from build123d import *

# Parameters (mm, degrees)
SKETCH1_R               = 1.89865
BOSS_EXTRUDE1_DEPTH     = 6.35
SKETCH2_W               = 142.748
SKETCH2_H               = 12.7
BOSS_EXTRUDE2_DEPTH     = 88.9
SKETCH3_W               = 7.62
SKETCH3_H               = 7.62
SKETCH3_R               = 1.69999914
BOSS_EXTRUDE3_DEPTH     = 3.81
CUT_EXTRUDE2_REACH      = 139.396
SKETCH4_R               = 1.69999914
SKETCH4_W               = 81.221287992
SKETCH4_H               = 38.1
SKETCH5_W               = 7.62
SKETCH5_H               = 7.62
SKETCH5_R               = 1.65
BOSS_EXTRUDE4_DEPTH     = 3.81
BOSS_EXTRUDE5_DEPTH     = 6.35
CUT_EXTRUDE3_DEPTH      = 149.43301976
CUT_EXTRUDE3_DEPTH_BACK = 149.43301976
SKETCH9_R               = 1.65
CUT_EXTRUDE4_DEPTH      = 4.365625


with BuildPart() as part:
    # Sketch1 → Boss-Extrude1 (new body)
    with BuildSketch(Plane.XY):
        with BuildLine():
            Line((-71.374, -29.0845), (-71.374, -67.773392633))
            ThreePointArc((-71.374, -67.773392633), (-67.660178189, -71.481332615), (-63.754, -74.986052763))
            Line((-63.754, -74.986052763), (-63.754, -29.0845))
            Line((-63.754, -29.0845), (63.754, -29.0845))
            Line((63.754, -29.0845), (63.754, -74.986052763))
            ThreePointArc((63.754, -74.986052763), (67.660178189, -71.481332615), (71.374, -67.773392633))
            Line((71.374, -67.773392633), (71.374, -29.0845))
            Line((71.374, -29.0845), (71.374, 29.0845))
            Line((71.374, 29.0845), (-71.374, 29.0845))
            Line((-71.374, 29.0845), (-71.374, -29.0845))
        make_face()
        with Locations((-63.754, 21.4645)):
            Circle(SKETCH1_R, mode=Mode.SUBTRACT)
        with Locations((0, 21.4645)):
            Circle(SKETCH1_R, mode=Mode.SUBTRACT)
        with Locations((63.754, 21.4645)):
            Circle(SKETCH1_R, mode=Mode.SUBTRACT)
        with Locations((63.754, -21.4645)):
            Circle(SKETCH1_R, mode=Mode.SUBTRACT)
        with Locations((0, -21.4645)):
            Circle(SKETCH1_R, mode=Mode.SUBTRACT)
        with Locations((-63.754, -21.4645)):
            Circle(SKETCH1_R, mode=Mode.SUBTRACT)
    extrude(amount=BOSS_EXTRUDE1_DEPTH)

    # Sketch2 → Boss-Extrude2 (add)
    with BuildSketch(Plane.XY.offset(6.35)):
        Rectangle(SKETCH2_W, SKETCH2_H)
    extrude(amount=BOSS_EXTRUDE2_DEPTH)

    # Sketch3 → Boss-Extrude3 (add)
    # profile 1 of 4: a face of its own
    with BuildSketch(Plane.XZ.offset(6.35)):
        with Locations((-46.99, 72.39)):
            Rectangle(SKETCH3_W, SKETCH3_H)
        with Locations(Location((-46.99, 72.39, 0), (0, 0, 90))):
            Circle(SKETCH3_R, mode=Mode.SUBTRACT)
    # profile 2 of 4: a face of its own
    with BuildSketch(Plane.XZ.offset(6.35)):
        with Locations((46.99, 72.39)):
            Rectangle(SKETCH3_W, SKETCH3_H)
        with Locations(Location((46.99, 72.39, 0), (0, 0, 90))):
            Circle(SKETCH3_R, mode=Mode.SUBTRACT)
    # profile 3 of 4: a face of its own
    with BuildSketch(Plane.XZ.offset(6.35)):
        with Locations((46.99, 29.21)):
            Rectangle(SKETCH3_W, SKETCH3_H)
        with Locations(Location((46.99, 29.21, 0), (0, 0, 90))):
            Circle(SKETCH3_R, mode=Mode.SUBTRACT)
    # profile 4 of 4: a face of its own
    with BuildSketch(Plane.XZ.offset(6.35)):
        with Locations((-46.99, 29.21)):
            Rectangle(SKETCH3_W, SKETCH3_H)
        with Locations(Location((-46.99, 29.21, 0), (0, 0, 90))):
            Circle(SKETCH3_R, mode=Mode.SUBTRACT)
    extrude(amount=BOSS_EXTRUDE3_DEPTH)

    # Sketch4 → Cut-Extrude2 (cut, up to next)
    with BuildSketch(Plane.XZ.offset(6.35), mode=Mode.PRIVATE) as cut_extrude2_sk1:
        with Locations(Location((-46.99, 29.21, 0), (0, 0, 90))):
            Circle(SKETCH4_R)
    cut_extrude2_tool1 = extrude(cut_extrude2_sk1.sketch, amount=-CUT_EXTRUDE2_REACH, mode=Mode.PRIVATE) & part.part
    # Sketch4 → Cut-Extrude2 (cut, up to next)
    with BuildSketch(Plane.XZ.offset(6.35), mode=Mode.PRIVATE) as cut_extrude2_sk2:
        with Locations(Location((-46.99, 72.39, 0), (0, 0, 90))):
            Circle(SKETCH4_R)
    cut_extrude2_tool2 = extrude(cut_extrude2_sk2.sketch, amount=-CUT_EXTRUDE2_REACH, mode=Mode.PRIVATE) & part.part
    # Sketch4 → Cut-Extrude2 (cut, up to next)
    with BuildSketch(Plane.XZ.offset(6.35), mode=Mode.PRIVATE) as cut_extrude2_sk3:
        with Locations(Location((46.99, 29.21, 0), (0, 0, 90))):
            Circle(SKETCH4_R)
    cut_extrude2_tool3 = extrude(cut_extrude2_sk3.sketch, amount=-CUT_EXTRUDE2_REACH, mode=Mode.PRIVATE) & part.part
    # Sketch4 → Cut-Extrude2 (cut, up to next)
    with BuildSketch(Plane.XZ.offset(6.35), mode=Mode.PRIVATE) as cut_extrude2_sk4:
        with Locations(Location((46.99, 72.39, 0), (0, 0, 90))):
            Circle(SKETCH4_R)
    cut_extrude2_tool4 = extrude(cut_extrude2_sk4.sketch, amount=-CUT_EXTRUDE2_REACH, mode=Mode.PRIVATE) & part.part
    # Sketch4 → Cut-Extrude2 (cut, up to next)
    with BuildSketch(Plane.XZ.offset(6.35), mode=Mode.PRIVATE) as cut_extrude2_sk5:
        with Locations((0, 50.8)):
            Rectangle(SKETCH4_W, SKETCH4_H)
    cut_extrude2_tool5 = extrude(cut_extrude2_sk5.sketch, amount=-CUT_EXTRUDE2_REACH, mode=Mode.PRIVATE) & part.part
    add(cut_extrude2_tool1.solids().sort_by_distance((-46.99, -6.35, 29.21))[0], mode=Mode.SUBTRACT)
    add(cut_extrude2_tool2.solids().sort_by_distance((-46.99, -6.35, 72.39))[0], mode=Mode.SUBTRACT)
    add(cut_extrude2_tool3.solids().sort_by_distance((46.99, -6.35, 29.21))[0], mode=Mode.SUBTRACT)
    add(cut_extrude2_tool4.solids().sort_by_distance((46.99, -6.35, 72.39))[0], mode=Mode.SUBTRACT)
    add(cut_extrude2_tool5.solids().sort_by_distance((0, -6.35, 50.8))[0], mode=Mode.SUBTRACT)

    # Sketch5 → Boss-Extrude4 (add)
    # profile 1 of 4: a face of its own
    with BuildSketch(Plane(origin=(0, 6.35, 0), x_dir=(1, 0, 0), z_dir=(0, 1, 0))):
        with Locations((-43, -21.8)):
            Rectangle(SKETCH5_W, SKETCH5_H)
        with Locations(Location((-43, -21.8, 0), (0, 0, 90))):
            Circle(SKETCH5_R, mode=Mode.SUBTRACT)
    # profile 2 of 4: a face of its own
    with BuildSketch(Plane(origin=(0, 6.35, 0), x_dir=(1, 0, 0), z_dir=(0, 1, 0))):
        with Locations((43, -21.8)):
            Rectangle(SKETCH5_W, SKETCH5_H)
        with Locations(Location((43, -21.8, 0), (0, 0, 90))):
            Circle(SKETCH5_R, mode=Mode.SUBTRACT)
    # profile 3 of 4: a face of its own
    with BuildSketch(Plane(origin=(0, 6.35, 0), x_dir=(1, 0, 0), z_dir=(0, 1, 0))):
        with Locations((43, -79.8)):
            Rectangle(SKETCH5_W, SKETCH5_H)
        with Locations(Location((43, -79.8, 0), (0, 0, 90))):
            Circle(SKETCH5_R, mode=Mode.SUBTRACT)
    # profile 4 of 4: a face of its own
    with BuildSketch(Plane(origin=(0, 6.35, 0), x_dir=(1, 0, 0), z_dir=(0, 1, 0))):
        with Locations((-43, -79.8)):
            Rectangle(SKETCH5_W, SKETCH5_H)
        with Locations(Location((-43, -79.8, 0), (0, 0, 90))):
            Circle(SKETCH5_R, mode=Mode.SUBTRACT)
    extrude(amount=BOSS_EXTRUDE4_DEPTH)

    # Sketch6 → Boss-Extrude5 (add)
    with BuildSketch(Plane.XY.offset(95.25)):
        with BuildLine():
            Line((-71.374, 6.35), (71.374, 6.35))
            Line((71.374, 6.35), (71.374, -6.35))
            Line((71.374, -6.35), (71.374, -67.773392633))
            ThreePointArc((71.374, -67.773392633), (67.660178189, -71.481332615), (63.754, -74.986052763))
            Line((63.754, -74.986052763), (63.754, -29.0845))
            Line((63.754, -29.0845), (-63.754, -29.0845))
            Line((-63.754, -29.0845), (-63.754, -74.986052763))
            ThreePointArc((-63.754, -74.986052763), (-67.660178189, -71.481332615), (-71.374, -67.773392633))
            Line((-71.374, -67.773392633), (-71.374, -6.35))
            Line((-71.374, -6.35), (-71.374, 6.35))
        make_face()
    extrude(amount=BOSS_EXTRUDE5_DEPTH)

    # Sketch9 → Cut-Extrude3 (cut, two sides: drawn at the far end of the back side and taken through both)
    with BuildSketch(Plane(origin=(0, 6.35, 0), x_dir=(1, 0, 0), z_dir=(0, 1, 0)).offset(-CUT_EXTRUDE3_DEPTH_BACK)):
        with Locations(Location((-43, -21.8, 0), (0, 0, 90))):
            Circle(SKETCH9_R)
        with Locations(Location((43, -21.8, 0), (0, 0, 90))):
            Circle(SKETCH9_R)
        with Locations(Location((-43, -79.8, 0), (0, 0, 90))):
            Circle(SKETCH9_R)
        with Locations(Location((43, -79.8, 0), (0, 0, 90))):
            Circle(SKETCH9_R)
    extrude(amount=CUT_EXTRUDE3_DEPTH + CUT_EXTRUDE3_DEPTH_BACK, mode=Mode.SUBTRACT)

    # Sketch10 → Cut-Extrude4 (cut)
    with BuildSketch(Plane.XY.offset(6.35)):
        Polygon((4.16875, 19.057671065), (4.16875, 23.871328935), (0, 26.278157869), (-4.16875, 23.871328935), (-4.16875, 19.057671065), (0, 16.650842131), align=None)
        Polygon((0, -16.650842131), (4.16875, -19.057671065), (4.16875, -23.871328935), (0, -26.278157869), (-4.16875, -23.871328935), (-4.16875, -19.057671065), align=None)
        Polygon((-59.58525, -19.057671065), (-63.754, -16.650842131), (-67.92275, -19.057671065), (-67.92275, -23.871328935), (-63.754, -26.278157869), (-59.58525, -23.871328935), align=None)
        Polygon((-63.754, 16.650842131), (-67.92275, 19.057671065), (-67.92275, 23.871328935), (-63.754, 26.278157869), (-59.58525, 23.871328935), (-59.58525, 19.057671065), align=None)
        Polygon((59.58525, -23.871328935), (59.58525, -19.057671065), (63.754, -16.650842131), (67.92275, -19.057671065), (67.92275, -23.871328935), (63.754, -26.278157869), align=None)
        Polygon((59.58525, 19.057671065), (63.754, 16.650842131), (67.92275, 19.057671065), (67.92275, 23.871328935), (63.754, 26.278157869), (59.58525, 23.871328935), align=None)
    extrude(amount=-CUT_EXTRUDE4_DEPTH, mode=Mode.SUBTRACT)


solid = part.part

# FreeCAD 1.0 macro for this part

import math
import FreeCAD as App
import Part
import Sketcher

V = App.Vector
Q = App.Units.Quantity

doc = App.newDocument("Part")
params = doc.addObject("Spreadsheet::Sheet", "Params")
for row, (alias, value) in enumerate([
    ("sketch1_radius", "3.875 in"),
    ("sketch1_width", "5.02 in"),
    ("sketch1_width2", "5.62 in"),
    ("pad1_length", "0.25 in"),
    ("sketch2_height", "0.5 in"),
    ("sketch2_width", "5.62 in"),
    ("pad2_length", "3.5 in"),
    ("sketch3_width", "0.3 in"),
    ("pad3_length", "0.15 in"),
    ("sketch8_height", "1.5 in"),
    ("sketch9_width", "0.3 in"),
    ("pad4_length", "0.15 in"),
    ("sketch10_radius", "3.875 in"),
    ("sketch10_width", "5.62 in"),
    ("sketch10_width2", "5.02 in"),
    ("pad5_length", "0.25 in"),
    ("pocket7_length", "0.171875 in"),
], start=1):
    params.set(f"A{row}", alias)
    params.set(f"B{row}", "=" + value)
    params.setAlias(f"B{row}", alias)

body = doc.addObject("PartDesign::Body", "Body")

# Sketch on XY plane
sketch1 = doc.addObject("Sketcher::SketchObject", "Sketch")
body.addObject(sketch1)
sketch1.AttachmentSupport = (doc.XY_Plane, [""])
sketch1.MapMode = "FlatFace"
sketch1.addGeometry(Part.ArcOfCircle(Part.Circle(V(0, 0, 0), V(0, 0, 1), 98.425), math.radians(-136.482267), math.radians(-130.371569)), False)
sketch1.addGeometry(Part.LineSegment(V(-63.754, -74.986053, 0), V(-63.754, -29.0845, 0)), False)
sketch1.addGeometry(Part.LineSegment(V(-63.754, -29.0845, 0), V(63.754, -29.0845, 0)), False)
sketch1.addGeometry(Part.LineSegment(V(63.754, -29.0845, 0), V(63.754, -74.986053, 0)), False)
sketch1.addGeometry(Part.ArcOfCircle(Part.Circle(V(0, 0, 0), V(0, 0, 1), 98.425), math.radians(-49.628431), math.radians(-43.517733)), False)
sketch1.addGeometry(Part.LineSegment(V(71.374, -67.773393, 0), V(71.374, 29.0845, 0)), False)
sketch1.addGeometry(Part.LineSegment(V(71.374, 29.0845, 0), V(-71.374, 29.0845, 0)), False)
sketch1.addGeometry(Part.LineSegment(V(-71.374, 29.0845, 0), V(-71.374, -67.773393, 0)), False)
sketch1.addGeometry(Part.Circle(V(-63.754, -21.4645, 0), V(0, 0, 1), 1.89865), False)
sketch1.addGeometry(Part.Circle(V(0, -21.4645, 0), V(0, 0, 1), 1.89865), False)
sketch1.addGeometry(Part.Circle(V(63.754, -21.4645, 0), V(0, 0, 1), 1.89865), False)
sketch1.addGeometry(Part.Circle(V(-63.754, 21.4645, 0), V(0, 0, 1), 1.89865), False)
sketch1.addGeometry(Part.Circle(V(0, 21.4645, 0), V(0, 0, 1), 1.89865), False)
sketch1.addGeometry(Part.Circle(V(63.754, 21.4645, 0), V(0, 0, 1), 1.89865), False)
sketch1.addConstraint(Sketcher.Constraint("Coincident", 0, 2, 1, 1))
sketch1.addConstraint(Sketcher.Constraint("Coincident", 1, 2, 2, 1))
sketch1.addConstraint(Sketcher.Constraint("Coincident", 2, 2, 3, 1))
sketch1.addConstraint(Sketcher.Constraint("Coincident", 3, 2, 4, 1))
sketch1.addConstraint(Sketcher.Constraint("Coincident", 4, 2, 5, 1))
sketch1.addConstraint(Sketcher.Constraint("Coincident", 5, 2, 6, 1))
sketch1.addConstraint(Sketcher.Constraint("Coincident", 6, 2, 7, 1))
sketch1.addConstraint(Sketcher.Constraint("Coincident", 7, 2, 0, 1))
sketch1.addConstraint(Sketcher.Constraint("Vertical", 1))
sketch1.addConstraint(Sketcher.Constraint("Horizontal", 2))
sketch1.addConstraint(Sketcher.Constraint("Vertical", 3))
sketch1.addConstraint(Sketcher.Constraint("Vertical", 5))
sketch1.addConstraint(Sketcher.Constraint("Horizontal", 6))
sketch1.addConstraint(Sketcher.Constraint("Vertical", 7))
sketch1.addConstraint(Sketcher.Constraint("Coincident", 0, 3, -1, 1))
sketch1.addConstraint(Sketcher.Constraint("Coincident", 4, 3, -1, 1))
sketch1.addConstraint(Sketcher.Constraint("Equal", 0, 4))
sketch1.addConstraint(Sketcher.Constraint("Equal", 8, 9))
sketch1.addConstraint(Sketcher.Constraint("Equal", 9, 10))
sketch1.addConstraint(Sketcher.Constraint("Equal", 10, 11))
sketch1.addConstraint(Sketcher.Constraint("Equal", 11, 12))
sketch1.addConstraint(Sketcher.Constraint("Equal", 12, 13))
sketch1.addConstraint(Sketcher.Constraint("Symmetric", 10, 3, 11, 3, -1, 1))
sketch1.addConstraint(Sketcher.Constraint("Symmetric", 9, 3, 12, 3, -1, 1))
sketch1.addConstraint(Sketcher.Constraint("Symmetric", 8, 3, 13, 3, -1, 1))
sketch1.addConstraint(Sketcher.Constraint("Symmetric", 8, 3, 10, 3, -2))
sketch1.addConstraint(Sketcher.Constraint("PointOnObject", 9, 3, -2))
sketch1.addConstraint(Sketcher.Constraint("Horizontal", 8, 3, 9, 3))
sketch1.addConstraint(Sketcher.Constraint("Horizontal", 0, 2, 3, 2))
sketch1.addConstraint(Sketcher.Constraint("Horizontal", 4, 2, 7, 2))
sketch1.addConstraint(Sketcher.Constraint("Vertical", 11, 3, 0, 2))
sketch1.addConstraint(Sketcher.Constraint("Radius", 0, Q("3.875 in")))
sketch1.addConstraint(Sketcher.Constraint("Diameter", 8, Q("0.1495 in")))
sketch1.addConstraint(Sketcher.Constraint("DistanceX", 2, 1, 2, 2, Q("5.02 in")))
sketch1.addConstraint(Sketcher.Constraint("DistanceX", 6, 2, 6, 1, Q("5.62 in")))
sketch1.addConstraint(Sketcher.Constraint("DistanceY", 1, 2, 8, 3, Q("0.3 in")))
sketch1.addConstraint(Sketcher.Constraint("DistanceY", 13, 3, 5, 2, Q("0.3 in")))
sketch1.addConstraint(Sketcher.Constraint("DistanceY", 8, 3, -1, 1, Q("21.4645 mm")))
sketch1.setExpression("Constraints[31]", "Params.sketch1_radius")
sketch1.setExpression("Constraints[33]", "Params.sketch1_width")
sketch1.setExpression("Constraints[34]", "Params.sketch1_width2")
pad1 = doc.addObject("PartDesign::Pad", "Pad")
body.addObject(pad1)
pad1.Profile = sketch1
pad1.setExpression("Length", "Params.pad1_length")

# Sketch on XY plane
sketch2 = doc.addObject("Sketcher::SketchObject", "Sketch001")
body.addObject(sketch2)
sketch2.AttachmentSupport = (doc.XY_Plane, [""])
sketch2.MapMode = "FlatFace"
sketch2.AttachmentOffset = App.Placement(V(0, 0, 0.25 * 25.4), App.Rotation())
sketch2.addGeometry(Part.LineSegment(V(-71.374, 6.35, 0), V(-71.374, -6.35, 0)), False)
sketch2.addGeometry(Part.LineSegment(V(-71.374, -6.35, 0), V(71.374, -6.35, 0)), False)
sketch2.addGeometry(Part.LineSegment(V(71.374, -6.35, 0), V(71.374, 6.35, 0)), False)
sketch2.addGeometry(Part.LineSegment(V(71.374, 6.35, 0), V(-71.374, 6.35, 0)), False)
sketch2.addConstraint(Sketcher.Constraint("Coincident", 0, 2, 1, 1))
sketch2.addConstraint(Sketcher.Constraint("Coincident", 1, 2, 2, 1))
sketch2.addConstraint(Sketcher.Constraint("Coincident", 2, 2, 3, 1))
sketch2.addConstraint(Sketcher.Constraint("Coincident", 3, 2, 0, 1))
sketch2.addConstraint(Sketcher.Constraint("Vertical", 0))
sketch2.addConstraint(Sketcher.Constraint("Horizontal", 1))
sketch2.addConstraint(Sketcher.Constraint("Vertical", 2))
sketch2.addConstraint(Sketcher.Constraint("Horizontal", 3))
sketch2.addConstraint(Sketcher.Constraint("Symmetric", 0, 2, 2, 2, -1, 1))
sketch2.addConstraint(Sketcher.Constraint("DistanceY", 0, 2, 0, 1, Q("0.5 in")))
sketch2.addConstraint(Sketcher.Constraint("DistanceX", 1, 1, 1, 2, Q("5.62 in")))
sketch2.setExpression("Constraints[9]", "Params.sketch2_height")
sketch2.setExpression("Constraints[10]", "Params.sketch2_width")
pad2 = doc.addObject("PartDesign::Pad", "Pad001")
body.addObject(pad2)
pad2.Profile = sketch2
pad2.setExpression("Length", "Params.pad2_length")

# Sketch on XZ plane
sketch3 = doc.addObject("Sketcher::SketchObject", "Sketch002")
body.addObject(sketch3)
sketch3.AttachmentSupport = (doc.XZ_Plane, [""])
sketch3.MapMode = "FlatFace"
sketch3.AttachmentOffset = App.Placement(V(0, 0, 0.25 * 25.4), App.Rotation())
sketch3.addGeometry(Part.LineSegment(V(-50.8, 76.2, 0), V(-50.8, 68.58, 0)), False)
sketch3.addGeometry(Part.LineSegment(V(-50.8, 68.58, 0), V(-43.18, 68.58, 0)), False)
sketch3.addGeometry(Part.LineSegment(V(-43.18, 68.58, 0), V(-43.18, 76.2, 0)), False)
sketch3.addGeometry(Part.LineSegment(V(-43.18, 76.2, 0), V(-50.8, 76.2, 0)), False)
sketch3.addGeometry(Part.Circle(V(-46.99, 72.39, 0), V(0, 0, 1), 1.699999), False)
sketch3.addGeometry(Part.LineSegment(V(43.18, 76.2, 0), V(43.18, 68.58, 0)), False)
sketch3.addGeometry(Part.LineSegment(V(43.18, 68.58, 0), V(50.8, 68.58, 0)), False)
sketch3.addGeometry(Part.LineSegment(V(50.8, 68.58, 0), V(50.8, 76.2, 0)), False)
sketch3.addGeometry(Part.LineSegment(V(50.8, 76.2, 0), V(43.18, 76.2, 0)), False)
sketch3.addGeometry(Part.Circle(V(46.99, 72.39, 0), V(0, 0, 1), 1.699999), False)
sketch3.addGeometry(Part.LineSegment(V(43.18, 33.02, 0), V(43.18, 25.4, 0)), False)
sketch3.addGeometry(Part.LineSegment(V(43.18, 25.4, 0), V(50.8, 25.4, 0)), False)
sketch3.addGeometry(Part.LineSegment(V(50.8, 25.4, 0), V(50.8, 33.02, 0)), False)
sketch3.addGeometry(Part.LineSegment(V(50.8, 33.02, 0), V(43.18, 33.02, 0)), False)
sketch3.addGeometry(Part.Circle(V(46.99, 29.21, 0), V(0, 0, 1), 1.699999), False)
sketch3.addGeometry(Part.LineSegment(V(-50.8, 33.02, 0), V(-50.8, 25.4, 0)), False)
sketch3.addGeometry(Part.LineSegment(V(-50.8, 25.4, 0), V(-43.18, 25.4, 0)), False)
sketch3.addGeometry(Part.LineSegment(V(-43.18, 25.4, 0), V(-43.18, 33.02, 0)), False)
sketch3.addGeometry(Part.LineSegment(V(-43.18, 33.02, 0), V(-50.8, 33.02, 0)), False)
sketch3.addGeometry(Part.Circle(V(-46.99, 29.21, 0), V(0, 0, 1), 1.699999), False)
sketch3.addConstraint(Sketcher.Constraint("Coincident", 0, 2, 1, 1))
sketch3.addConstraint(Sketcher.Constraint("Coincident", 1, 2, 2, 1))
sketch3.addConstraint(Sketcher.Constraint("Coincident", 2, 2, 3, 1))
sketch3.addConstraint(Sketcher.Constraint("Coincident", 3, 2, 0, 1))
sketch3.addConstraint(Sketcher.Constraint("Coincident", 5, 2, 6, 1))
sketch3.addConstraint(Sketcher.Constraint("Coincident", 6, 2, 7, 1))
sketch3.addConstraint(Sketcher.Constraint("Coincident", 7, 2, 8, 1))
sketch3.addConstraint(Sketcher.Constraint("Coincident", 8, 2, 5, 1))
sketch3.addConstraint(Sketcher.Constraint("Coincident", 10, 2, 11, 1))
sketch3.addConstraint(Sketcher.Constraint("Coincident", 11, 2, 12, 1))
sketch3.addConstraint(Sketcher.Constraint("Coincident", 12, 2, 13, 1))
sketch3.addConstraint(Sketcher.Constraint("Coincident", 13, 2, 10, 1))
sketch3.addConstraint(Sketcher.Constraint("Coincident", 15, 2, 16, 1))
sketch3.addConstraint(Sketcher.Constraint("Coincident", 16, 2, 17, 1))
sketch3.addConstraint(Sketcher.Constraint("Coincident", 17, 2, 18, 1))
sketch3.addConstraint(Sketcher.Constraint("Coincident", 18, 2, 15, 1))
sketch3.addConstraint(Sketcher.Constraint("Vertical", 0))
sketch3.addConstraint(Sketcher.Constraint("Horizontal", 1))
sketch3.addConstraint(Sketcher.Constraint("Vertical", 2))
sketch3.addConstraint(Sketcher.Constraint("Horizontal", 3))
sketch3.addConstraint(Sketcher.Constraint("Vertical", 5))
sketch3.addConstraint(Sketcher.Constraint("Horizontal", 6))
sketch3.addConstraint(Sketcher.Constraint("Vertical", 7))
sketch3.addConstraint(Sketcher.Constraint("Horizontal", 8))
sketch3.addConstraint(Sketcher.Constraint("Vertical", 10))
sketch3.addConstraint(Sketcher.Constraint("Horizontal", 11))
sketch3.addConstraint(Sketcher.Constraint("Vertical", 12))
sketch3.addConstraint(Sketcher.Constraint("Horizontal", 13))
sketch3.addConstraint(Sketcher.Constraint("Vertical", 15))
sketch3.addConstraint(Sketcher.Constraint("Horizontal", 16))
sketch3.addConstraint(Sketcher.Constraint("Vertical", 17))
sketch3.addConstraint(Sketcher.Constraint("Horizontal", 18))
sketch3.addConstraint(Sketcher.Constraint("Equal", 4, 9))
sketch3.addConstraint(Sketcher.Constraint("Equal", 9, 14))
sketch3.addConstraint(Sketcher.Constraint("Equal", 14, 19))
sketch3.addConstraint(Sketcher.Constraint("Symmetric", 4, 3, 9, 3, -2))
sketch3.addConstraint(Sketcher.Constraint("Symmetric", 14, 3, 19, 3, -2))
sketch3.addConstraint(Sketcher.Constraint("Symmetric", 1, 2, 5, 2, -2))
sketch3.addConstraint(Sketcher.Constraint("Symmetric", 3, 2, 7, 2, -2))
sketch3.addConstraint(Sketcher.Constraint("Symmetric", 11, 2, 15, 2, -2))
sketch3.addConstraint(Sketcher.Constraint("Symmetric", 13, 2, 17, 2, -2))
sketch3.addConstraint(Sketcher.Constraint("Vertical", 9, 3, 14, 3))
sketch3.addConstraint(Sketcher.Constraint("Vertical", 8, 2, 10, 2))
sketch3.addConstraint(Sketcher.Constraint("Vertical", 7, 2, 11, 2))
sketch3.addConstraint(Sketcher.Constraint("Equal", 18, 0))
sketch3.addConstraint(Sketcher.Constraint("Equal", 7, 10))
sketch3.addConstraint(Sketcher.Constraint("DistanceX", 1, 1, 1, 2, Q("0.3 in")))
sketch3.addConstraint(Sketcher.Constraint("DistanceX", 0, 2, -1, 1, Q("2 in")))
sketch3.addConstraint(Sketcher.Constraint("DistanceY", -1, 1, 2, 2, Q("3 in")))
sketch3.addConstraint(Sketcher.Constraint("DistanceY", -1, 1, 10, 2, Q("1 in")))
sketch3.addConstraint(Sketcher.Constraint("DistanceX", 4, 3, 9, 3, Q("3.7 in")))
sketch3.addConstraint(Sketcher.Constraint("DistanceY", 14, 3, 9, 3, Q("1.7 in")))
sketch3.addConstraint(Sketcher.Constraint("Diameter", 4, Q("3.399998 mm")))
sketch3.addConstraint(Sketcher.Constraint("DistanceY", -1, 1, 4, 3, Q("2.85 in")))
sketch3.setExpression("Constraints[46]", "Params.sketch3_width")
pad3 = doc.addObject("PartDesign::Pad", "Pad002")
body.addObject(pad3)
pad3.Profile = sketch3
pad3.setExpression("Length", "Params.pad3_length")

# Sketch on XZ plane
sketch4 = doc.addObject("Sketcher::SketchObject", "Sketch003")
body.addObject(sketch4)
sketch4.AttachmentSupport = (doc.XZ_Plane, [""])
sketch4.MapMode = "FlatFace"
sketch4.AttachmentOffset = App.Placement(V(0, 0, 0.25 * 25.4), App.Rotation())
sketch4.addGeometry(Part.Circle(V(-46.99, 29.21, 0), V(0, 0, 1), 1.699999), False)
sketch4.addConstraint(Sketcher.Constraint("Diameter", 0, Q("3.399998 mm")))
sketch4.addConstraint(Sketcher.Constraint("DistanceX", 0, 3, -1, 1, Q("1.85 in")))
sketch4.addConstraint(Sketcher.Constraint("DistanceY", -1, 1, 0, 3, Q("1.15 in")))
pocket1 = doc.addObject("PartDesign::Pocket", "Pocket")
body.addObject(pocket1)
pocket1.Profile = sketch4
pocket1.Type = "UpToFirst"

# Sketch on XZ plane
sketch5 = doc.addObject("Sketcher::SketchObject", "Sketch004")
body.addObject(sketch5)
sketch5.AttachmentSupport = (doc.XZ_Plane, [""])
sketch5.MapMode = "FlatFace"
sketch5.AttachmentOffset = App.Placement(V(0, 0, 0.25 * 25.4), App.Rotation())
sketch5.addGeometry(Part.Circle(V(-46.99, 72.39, 0), V(0, 0, 1), 1.699999), False)
sketch5.addConstraint(Sketcher.Constraint("Diameter", 0, Q("3.399998 mm")))
sketch5.addConstraint(Sketcher.Constraint("DistanceX", 0, 3, -1, 1, Q("1.85 in")))
sketch5.addConstraint(Sketcher.Constraint("DistanceY", -1, 1, 0, 3, Q("2.85 in")))
pocket2 = doc.addObject("PartDesign::Pocket", "Pocket001")
body.addObject(pocket2)
pocket2.Profile = sketch5
pocket2.Type = "UpToFirst"

# Sketch on XZ plane
sketch6 = doc.addObject("Sketcher::SketchObject", "Sketch005")
body.addObject(sketch6)
sketch6.AttachmentSupport = (doc.XZ_Plane, [""])
sketch6.MapMode = "FlatFace"
sketch6.AttachmentOffset = App.Placement(V(0, 0, 0.25 * 25.4), App.Rotation())
sketch6.addGeometry(Part.Circle(V(46.99, 29.21, 0), V(0, 0, 1), 1.699999), False)
sketch6.addConstraint(Sketcher.Constraint("Diameter", 0, Q("3.399998 mm")))
sketch6.addConstraint(Sketcher.Constraint("DistanceX", -1, 1, 0, 3, Q("1.85 in")))
sketch6.addConstraint(Sketcher.Constraint("DistanceY", -1, 1, 0, 3, Q("1.15 in")))
pocket3 = doc.addObject("PartDesign::Pocket", "Pocket002")
body.addObject(pocket3)
pocket3.Profile = sketch6
pocket3.Type = "UpToFirst"

# Sketch on XZ plane
sketch7 = doc.addObject("Sketcher::SketchObject", "Sketch006")
body.addObject(sketch7)
sketch7.AttachmentSupport = (doc.XZ_Plane, [""])
sketch7.MapMode = "FlatFace"
sketch7.AttachmentOffset = App.Placement(V(0, 0, 0.25 * 25.4), App.Rotation())
sketch7.addGeometry(Part.Circle(V(46.99, 72.39, 0), V(0, 0, 1), 1.699999), False)
sketch7.addConstraint(Sketcher.Constraint("Diameter", 0, Q("3.399998 mm")))
sketch7.addConstraint(Sketcher.Constraint("DistanceX", -1, 1, 0, 3, Q("1.85 in")))
sketch7.addConstraint(Sketcher.Constraint("DistanceY", -1, 1, 0, 3, Q("2.85 in")))
pocket4 = doc.addObject("PartDesign::Pocket", "Pocket003")
body.addObject(pocket4)
pocket4.Profile = sketch7
pocket4.Type = "UpToFirst"

# Sketch on XZ plane
sketch8 = doc.addObject("Sketcher::SketchObject", "Sketch007")
body.addObject(sketch8)
sketch8.AttachmentSupport = (doc.XZ_Plane, [""])
sketch8.MapMode = "FlatFace"
sketch8.AttachmentOffset = App.Placement(V(0, 0, 0.25 * 25.4), App.Rotation())
sketch8.addGeometry(Part.LineSegment(V(-40.610644, 69.85, 0), V(-40.610644, 31.75, 0)), False)
sketch8.addGeometry(Part.LineSegment(V(-40.610644, 31.75, 0), V(40.610644, 31.75, 0)), False)
sketch8.addGeometry(Part.LineSegment(V(40.610644, 31.75, 0), V(40.610644, 69.85, 0)), False)
sketch8.addGeometry(Part.LineSegment(V(40.610644, 69.85, 0), V(-40.610644, 69.85, 0)), False)
sketch8.addConstraint(Sketcher.Constraint("Coincident", 0, 2, 1, 1))
sketch8.addConstraint(Sketcher.Constraint("Coincident", 1, 2, 2, 1))
sketch8.addConstraint(Sketcher.Constraint("Coincident", 2, 2, 3, 1))
sketch8.addConstraint(Sketcher.Constraint("Coincident", 3, 2, 0, 1))
sketch8.addConstraint(Sketcher.Constraint("Vertical", 0))
sketch8.addConstraint(Sketcher.Constraint("Horizontal", 1))
sketch8.addConstraint(Sketcher.Constraint("Vertical", 2))
sketch8.addConstraint(Sketcher.Constraint("Horizontal", 3))
sketch8.addConstraint(Sketcher.Constraint("DistanceY", 0, 2, 0, 1, Q("1.5 in")))
sketch8.addConstraint(Sketcher.Constraint("DistanceY", -1, 1, 0, 2, Q("1.25 in")))
sketch8.addConstraint(Sketcher.Constraint("DistanceX", 1, 1, 1, 2, Q("81.221288 mm")))
sketch8.addConstraint(Sketcher.Constraint("DistanceX", 0, 2, -1, 1, Q("40.610644 mm")))
sketch8.setExpression("Constraints[8]", "Params.sketch8_height")
pocket5 = doc.addObject("PartDesign::Pocket", "Pocket004")
body.addObject(pocket5)
pocket5.Profile = sketch8
pocket5.Type = "UpToFirst"

# Sketch on XZ plane
sketch9 = doc.addObject("Sketcher::SketchObject", "Sketch008")
body.addObject(sketch9)
sketch9.AttachmentSupport = (doc.XZ_Plane, [""])
sketch9.MapMode = "FlatFace"
sketch9.AttachmentOffset = App.Placement(V(0, 0, -0.25 * 25.4), App.Rotation())
sketch9.addGeometry(Part.LineSegment(V(-46.81, 17.99, 0), V(-46.81, 25.61, 0)), False)
sketch9.addGeometry(Part.LineSegment(V(-46.81, 25.61, 0), V(-39.19, 25.61, 0)), False)
sketch9.addGeometry(Part.LineSegment(V(-39.19, 25.61, 0), V(-39.19, 17.99, 0)), False)
sketch9.addGeometry(Part.LineSegment(V(-39.19, 17.99, 0), V(-46.81, 17.99, 0)), False)
sketch9.addGeometry(Part.Circle(V(-43, 21.8, 0), V(0, 0, 1), 1.65), False)
sketch9.addGeometry(Part.LineSegment(V(39.19, 17.99, 0), V(39.19, 25.61, 0)), False)
sketch9.addGeometry(Part.LineSegment(V(39.19, 25.61, 0), V(46.81, 25.61, 0)), False)
sketch9.addGeometry(Part.LineSegment(V(46.81, 25.61, 0), V(46.81, 17.99, 0)), False)
sketch9.addGeometry(Part.LineSegment(V(46.81, 17.99, 0), V(39.19, 17.99, 0)), False)
sketch9.addGeometry(Part.Circle(V(43, 21.8, 0), V(0, 0, 1), 1.65), False)
sketch9.addGeometry(Part.LineSegment(V(39.19, 75.99, 0), V(39.19, 83.61, 0)), False)
sketch9.addGeometry(Part.LineSegment(V(39.19, 83.61, 0), V(46.81, 83.61, 0)), False)
sketch9.addGeometry(Part.LineSegment(V(46.81, 83.61, 0), V(46.81, 75.99, 0)), False)
sketch9.addGeometry(Part.LineSegment(V(46.81, 75.99, 0), V(39.19, 75.99, 0)), False)
sketch9.addGeometry(Part.Circle(V(43, 79.8, 0), V(0, 0, 1), 1.65), False)
sketch9.addGeometry(Part.LineSegment(V(-46.81, 75.99, 0), V(-46.81, 83.61, 0)), False)
sketch9.addGeometry(Part.LineSegment(V(-46.81, 83.61, 0), V(-39.19, 83.61, 0)), False)
sketch9.addGeometry(Part.LineSegment(V(-39.19, 83.61, 0), V(-39.19, 75.99, 0)), False)
sketch9.addGeometry(Part.LineSegment(V(-39.19, 75.99, 0), V(-46.81, 75.99, 0)), False)
sketch9.addGeometry(Part.Circle(V(-43, 79.8, 0), V(0, 0, 1), 1.65), False)
sketch9.addConstraint(Sketcher.Constraint("Coincident", 0, 2, 1, 1))
sketch9.addConstraint(Sketcher.Constraint("Coincident", 1, 2, 2, 1))
sketch9.addConstraint(Sketcher.Constraint("Coincident", 2, 2, 3, 1))
sketch9.addConstraint(Sketcher.Constraint("Coincident", 3, 2, 0, 1))
sketch9.addConstraint(Sketcher.Constraint("Coincident", 5, 2, 6, 1))
sketch9.addConstraint(Sketcher.Constraint("Coincident", 6, 2, 7, 1))
sketch9.addConstraint(Sketcher.Constraint("Coincident", 7, 2, 8, 1))
sketch9.addConstraint(Sketcher.Constraint("Coincident", 8, 2, 5, 1))
sketch9.addConstraint(Sketcher.Constraint("Coincident", 10, 2, 11, 1))
sketch9.addConstraint(Sketcher.Constraint("Coincident", 11, 2, 12, 1))
sketch9.addConstraint(Sketcher.Constraint("Coincident", 12, 2, 13, 1))
sketch9.addConstraint(Sketcher.Constraint("Coincident", 13, 2, 10, 1))
sketch9.addConstraint(Sketcher.Constraint("Coincident", 15, 2, 16, 1))
sketch9.addConstraint(Sketcher.Constraint("Coincident", 16, 2, 17, 1))
sketch9.addConstraint(Sketcher.Constraint("Coincident", 17, 2, 18, 1))
sketch9.addConstraint(Sketcher.Constraint("Coincident", 18, 2, 15, 1))
sketch9.addConstraint(Sketcher.Constraint("Vertical", 0))
sketch9.addConstraint(Sketcher.Constraint("Horizontal", 1))
sketch9.addConstraint(Sketcher.Constraint("Vertical", 2))
sketch9.addConstraint(Sketcher.Constraint("Horizontal", 3))
sketch9.addConstraint(Sketcher.Constraint("Vertical", 5))
sketch9.addConstraint(Sketcher.Constraint("Horizontal", 6))
sketch9.addConstraint(Sketcher.Constraint("Vertical", 7))
sketch9.addConstraint(Sketcher.Constraint("Horizontal", 8))
sketch9.addConstraint(Sketcher.Constraint("Vertical", 10))
sketch9.addConstraint(Sketcher.Constraint("Horizontal", 11))
sketch9.addConstraint(Sketcher.Constraint("Vertical", 12))
sketch9.addConstraint(Sketcher.Constraint("Horizontal", 13))
sketch9.addConstraint(Sketcher.Constraint("Vertical", 15))
sketch9.addConstraint(Sketcher.Constraint("Horizontal", 16))
sketch9.addConstraint(Sketcher.Constraint("Vertical", 17))
sketch9.addConstraint(Sketcher.Constraint("Horizontal", 18))
sketch9.addConstraint(Sketcher.Constraint("Equal", 4, 9))
sketch9.addConstraint(Sketcher.Constraint("Equal", 9, 14))
sketch9.addConstraint(Sketcher.Constraint("Equal", 14, 19))
sketch9.addConstraint(Sketcher.Constraint("Symmetric", 4, 3, 9, 3, -2))
sketch9.addConstraint(Sketcher.Constraint("Symmetric", 14, 3, 19, 3, -2))
sketch9.addConstraint(Sketcher.Constraint("Symmetric", 1, 2, 5, 2, -2))
sketch9.addConstraint(Sketcher.Constraint("Symmetric", 3, 2, 7, 2, -2))
sketch9.addConstraint(Sketcher.Constraint("Symmetric", 11, 2, 15, 2, -2))
sketch9.addConstraint(Sketcher.Constraint("Symmetric", 13, 2, 17, 2, -2))
sketch9.addConstraint(Sketcher.Constraint("Vertical", 9, 3, 14, 3))
sketch9.addConstraint(Sketcher.Constraint("Vertical", 8, 2, 10, 2))
sketch9.addConstraint(Sketcher.Constraint("Vertical", 7, 2, 11, 2))
sketch9.addConstraint(Sketcher.Constraint("Equal", 18, 0))
sketch9.addConstraint(Sketcher.Constraint("Equal", 7, 10))
sketch9.addConstraint(Sketcher.Constraint("DistanceX", 1, 1, 1, 2, Q("0.3 in")))
sketch9.addConstraint(Sketcher.Constraint("Diameter", 4, Q("3.3 mm")))
sketch9.addConstraint(Sketcher.Constraint("DistanceX", 0, 2, 4, 3, Q("0.15 in")))
sketch9.addConstraint(Sketcher.Constraint("DistanceY", 4, 3, 0, 2, Q("0.15 in")))
sketch9.addConstraint(Sketcher.Constraint("DistanceY", 14, 3, 10, 2, Q("0.15 in")))
sketch9.addConstraint(Sketcher.Constraint("DistanceX", 4, 3, -1, 1, Q("43 mm")))
sketch9.addConstraint(Sketcher.Constraint("DistanceY", -1, 1, 4, 3, Q("21.8 mm")))
sketch9.addConstraint(Sketcher.Constraint("DistanceY", -1, 1, 14, 3, Q("79.8 mm")))
sketch9.setExpression("Constraints[46]", "Params.sketch9_width")
pad4 = doc.addObject("PartDesign::Pad", "Pad003")
body.addObject(pad4)
pad4.Profile = sketch9
pad4.setExpression("Length", "Params.pad4_length")
pad4.Reversed = True

# Sketch on XY plane
sketch10 = doc.addObject("Sketcher::SketchObject", "Sketch009")
body.addObject(sketch10)
sketch10.AttachmentSupport = (doc.XY_Plane, [""])
sketch10.MapMode = "FlatFace"
sketch10.AttachmentOffset = App.Placement(V(0, 0, 3.75 * 25.4), App.Rotation())
sketch10.addGeometry(Part.LineSegment(V(71.374, 6.35, 0), V(-71.374, 6.35, 0)), False)
sketch10.addGeometry(Part.LineSegment(V(-71.374, 6.35, 0), V(-71.374, -67.773393, 0)), False)
sketch10.addGeometry(Part.ArcOfCircle(Part.Circle(V(0, 0, 0), V(0, 0, 1), 98.425), math.radians(-136.482267), math.radians(-130.371569)), False)
sketch10.addGeometry(Part.LineSegment(V(-63.754, -74.986053, 0), V(-63.754, -29.0845, 0)), False)
sketch10.addGeometry(Part.LineSegment(V(-63.754, -29.0845, 0), V(63.754, -29.0845, 0)), False)
sketch10.addGeometry(Part.LineSegment(V(63.754, -29.0845, 0), V(63.754, -74.986053, 0)), False)
sketch10.addGeometry(Part.ArcOfCircle(Part.Circle(V(0, 0, 0), V(0, 0, 1), 98.425), math.radians(-49.628431), math.radians(-43.517733)), False)
sketch10.addGeometry(Part.LineSegment(V(71.374, -67.773393, 0), V(71.374, 6.35, 0)), False)
sketch10.addConstraint(Sketcher.Constraint("Coincident", 0, 2, 1, 1))
sketch10.addConstraint(Sketcher.Constraint("Coincident", 1, 2, 2, 1))
sketch10.addConstraint(Sketcher.Constraint("Coincident", 2, 2, 3, 1))
sketch10.addConstraint(Sketcher.Constraint("Coincident", 3, 2, 4, 1))
sketch10.addConstraint(Sketcher.Constraint("Coincident", 4, 2, 5, 1))
sketch10.addConstraint(Sketcher.Constraint("Coincident", 5, 2, 6, 1))
sketch10.addConstraint(Sketcher.Constraint("Coincident", 6, 2, 7, 1))
sketch10.addConstraint(Sketcher.Constraint("Coincident", 7, 2, 0, 1))
sketch10.addConstraint(Sketcher.Constraint("Horizontal", 0))
sketch10.addConstraint(Sketcher.Constraint("Vertical", 1))
sketch10.addConstraint(Sketcher.Constraint("Vertical", 3))
sketch10.addConstraint(Sketcher.Constraint("Horizontal", 4))
sketch10.addConstraint(Sketcher.Constraint("Vertical", 5))
sketch10.addConstraint(Sketcher.Constraint("Vertical", 7))
sketch10.addConstraint(Sketcher.Constraint("Coincident", 2, 3, -1, 1))
sketch10.addConstraint(Sketcher.Constraint("Coincident", 6, 3, -1, 1))
sketch10.addConstraint(Sketcher.Constraint("Equal", 2, 6))
sketch10.addConstraint(Sketcher.Constraint("Horizontal", 2, 2, 5, 2))
sketch10.addConstraint(Sketcher.Constraint("Horizontal", 1, 2, 6, 2))
sketch10.addConstraint(Sketcher.Constraint("Radius", 2, Q("3.875 in")))
sketch10.addConstraint(Sketcher.Constraint("DistanceX", 0, 2, 0, 1, Q("5.62 in")))
sketch10.addConstraint(Sketcher.Constraint("DistanceX", 4, 1, 4, 2, Q("5.02 in")))
sketch10.addConstraint(Sketcher.Constraint("DistanceY", -1, 1, 0, 2, Q("0.25 in")))
sketch10.addConstraint(Sketcher.Constraint("DistanceY", 3, 2, -1, 1, Q("29.0845 mm")))
sketch10.setExpression("Constraints[19]", "Params.sketch10_radius")
sketch10.setExpression("Constraints[20]", "Params.sketch10_width")
sketch10.setExpression("Constraints[21]", "Params.sketch10_width2")
pad5 = doc.addObject("PartDesign::Pad", "Pad004")
body.addObject(pad5)
pad5.Profile = sketch10
pad5.setExpression("Length", "Params.pad5_length")

# Sketch on XZ plane
sketch11 = doc.addObject("Sketcher::SketchObject", "Sketch010")
body.addObject(sketch11)
sketch11.AttachmentSupport = (doc.XZ_Plane, [""])
sketch11.MapMode = "FlatFace"
sketch11.AttachmentOffset = App.Placement(V(0, 0, -0.25 * 25.4), App.Rotation())
sketch11.addGeometry(Part.Circle(V(-43, 21.8, 0), V(0, 0, 1), 1.65), False)
sketch11.addGeometry(Part.Circle(V(43, 21.8, 0), V(0, 0, 1), 1.65), False)
sketch11.addGeometry(Part.Circle(V(-43, 79.8, 0), V(0, 0, 1), 1.65), False)
sketch11.addGeometry(Part.Circle(V(43, 79.8, 0), V(0, 0, 1), 1.65), False)
sketch11.addConstraint(Sketcher.Constraint("Equal", 0, 1))
sketch11.addConstraint(Sketcher.Constraint("Equal", 1, 2))
sketch11.addConstraint(Sketcher.Constraint("Equal", 2, 3))
sketch11.addConstraint(Sketcher.Constraint("Symmetric", 0, 3, 1, 3, -2))
sketch11.addConstraint(Sketcher.Constraint("Symmetric", 2, 3, 3, 3, -2))
sketch11.addConstraint(Sketcher.Constraint("Vertical", 0, 3, 2, 3))
sketch11.addConstraint(Sketcher.Constraint("Diameter", 0, Q("3.3 mm")))
sketch11.addConstraint(Sketcher.Constraint("DistanceX", 0, 3, -1, 1, Q("43 mm")))
sketch11.addConstraint(Sketcher.Constraint("DistanceY", -1, 1, 0, 3, Q("21.8 mm")))
sketch11.addConstraint(Sketcher.Constraint("DistanceY", -1, 1, 2, 3, Q("79.8 mm")))
pocket6 = doc.addObject("PartDesign::Pocket", "Pocket005")
body.addObject(pocket6)
pocket6.Profile = sketch11
pocket6.Type = "ThroughAll"
pocket6.Midplane = True

# Sketch on XY plane
sketch12 = doc.addObject("Sketcher::SketchObject", "Sketch011")
body.addObject(sketch12)
sketch12.AttachmentSupport = (doc.XY_Plane, [""])
sketch12.MapMode = "FlatFace"
sketch12.AttachmentOffset = App.Placement(V(0, 0, 0.25 * 25.4), App.Rotation())
sketch12.addGeometry(Part.LineSegment(V(4.16875, 19.057671, 0), V(4.16875, 23.871329, 0)), False)
sketch12.addGeometry(Part.LineSegment(V(4.16875, 23.871329, 0), V(0, 26.278158, 0)), False)
sketch12.addGeometry(Part.LineSegment(V(0, 26.278158, 0), V(-4.16875, 23.871329, 0)), False)
sketch12.addGeometry(Part.LineSegment(V(-4.16875, 23.871329, 0), V(-4.16875, 19.057671, 0)), False)
sketch12.addGeometry(Part.LineSegment(V(-4.16875, 19.057671, 0), V(0, 16.650842, 0)), False)
sketch12.addGeometry(Part.LineSegment(V(0, 16.650842, 0), V(4.16875, 19.057671, 0)), False)
sketch12.addGeometry(Part.LineSegment(V(4.16875, -19.057671, 0), V(0, -16.650842, 0)), False)
sketch12.addGeometry(Part.LineSegment(V(0, -16.650842, 0), V(-4.16875, -19.057671, 0)), False)
sketch12.addGeometry(Part.LineSegment(V(-4.16875, -19.057671, 0), V(-4.16875, -23.871329, 0)), False)
sketch12.addGeometry(Part.LineSegment(V(-4.16875, -23.871329, 0), V(0, -26.278158, 0)), False)
sketch12.addGeometry(Part.LineSegment(V(0, -26.278158, 0), V(4.16875, -23.871329, 0)), False)
sketch12.addGeometry(Part.LineSegment(V(4.16875, -23.871329, 0), V(4.16875, -19.057671, 0)), False)
sketch12.addGeometry(Part.LineSegment(V(-59.58525, -19.057671, 0), V(-63.754, -16.650842, 0)), False)
sketch12.addGeometry(Part.LineSegment(V(-63.754, -16.650842, 0), V(-67.92275, -19.057671, 0)), False)
sketch12.addGeometry(Part.LineSegment(V(-67.92275, -19.057671, 0), V(-67.92275, -23.871329, 0)), False)
sketch12.addGeometry(Part.LineSegment(V(-67.92275, -23.871329, 0), V(-63.754, -26.278158, 0)), False)
sketch12.addGeometry(Part.LineSegment(V(-63.754, -26.278158, 0), V(-59.58525, -23.871329, 0)), False)
sketch12.addGeometry(Part.LineSegment(V(-59.58525, -23.871329, 0), V(-59.58525, -19.057671, 0)), False)
sketch12.addGeometry(Part.LineSegment(V(-67.92275, 19.057671, 0), V(-63.754, 16.650842, 0)), False)
sketch12.addGeometry(Part.LineSegment(V(-63.754, 16.650842, 0), V(-59.58525, 19.057671, 0)), False)
sketch12.addGeometry(Part.LineSegment(V(-59.58525, 19.057671, 0), V(-59.58525, 23.871329, 0)), False)
sketch12.addGeometry(Part.LineSegment(V(-59.58525, 23.871329, 0), V(-63.754, 26.278158, 0)), False)
sketch12.addGeometry(Part.LineSegment(V(-63.754, 26.278158, 0), V(-67.92275, 23.871329, 0)), False)
sketch12.addGeometry(Part.LineSegment(V(-67.92275, 23.871329, 0), V(-67.92275, 19.057671, 0)), False)
sketch12.addGeometry(Part.LineSegment(V(59.58525, -19.057671, 0), V(59.58525, -23.871329, 0)), False)
sketch12.addGeometry(Part.LineSegment(V(59.58525, -23.871329, 0), V(63.754, -26.278158, 0)), False)
sketch12.addGeometry(Part.LineSegment(V(63.754, -26.278158, 0), V(67.92275, -23.871329, 0)), False)
sketch12.addGeometry(Part.LineSegment(V(67.92275, -23.871329, 0), V(67.92275, -19.057671, 0)), False)
sketch12.addGeometry(Part.LineSegment(V(67.92275, -19.057671, 0), V(63.754, -16.650842, 0)), False)
sketch12.addGeometry(Part.LineSegment(V(63.754, -16.650842, 0), V(59.58525, -19.057671, 0)), False)
sketch12.addGeometry(Part.LineSegment(V(59.58525, 19.057671, 0), V(63.754, 16.650842, 0)), False)
sketch12.addGeometry(Part.LineSegment(V(63.754, 16.650842, 0), V(67.92275, 19.057671, 0)), False)
sketch12.addGeometry(Part.LineSegment(V(67.92275, 19.057671, 0), V(67.92275, 23.871329, 0)), False)
sketch12.addGeometry(Part.LineSegment(V(67.92275, 23.871329, 0), V(63.754, 26.278158, 0)), False)
sketch12.addGeometry(Part.LineSegment(V(63.754, 26.278158, 0), V(59.58525, 23.871329, 0)), False)
sketch12.addGeometry(Part.LineSegment(V(59.58525, 23.871329, 0), V(59.58525, 19.057671, 0)), False)
sketch12.addConstraint(Sketcher.Constraint("Coincident", 0, 2, 1, 1))
sketch12.addConstraint(Sketcher.Constraint("Coincident", 1, 2, 2, 1))
sketch12.addConstraint(Sketcher.Constraint("Coincident", 2, 2, 3, 1))
sketch12.addConstraint(Sketcher.Constraint("Coincident", 3, 2, 4, 1))
sketch12.addConstraint(Sketcher.Constraint("Coincident", 4, 2, 5, 1))
sketch12.addConstraint(Sketcher.Constraint("Coincident", 5, 2, 0, 1))
sketch12.addConstraint(Sketcher.Constraint("Coincident", 6, 2, 7, 1))
sketch12.addConstraint(Sketcher.Constraint("Coincident", 7, 2, 8, 1))
sketch12.addConstraint(Sketcher.Constraint("Coincident", 8, 2, 9, 1))
sketch12.addConstraint(Sketcher.Constraint("Coincident", 9, 2, 10, 1))
sketch12.addConstraint(Sketcher.Constraint("Coincident", 10, 2, 11, 1))
sketch12.addConstraint(Sketcher.Constraint("Coincident", 11, 2, 6, 1))
sketch12.addConstraint(Sketcher.Constraint("Coincident", 12, 2, 13, 1))
sketch12.addConstraint(Sketcher.Constraint("Coincident", 13, 2, 14, 1))
sketch12.addConstraint(Sketcher.Constraint("Coincident", 14, 2, 15, 1))
sketch12.addConstraint(Sketcher.Constraint("Coincident", 15, 2, 16, 1))
sketch12.addConstraint(Sketcher.Constraint("Coincident", 16, 2, 17, 1))
sketch12.addConstraint(Sketcher.Constraint("Coincident", 17, 2, 12, 1))
sketch12.addConstraint(Sketcher.Constraint("Coincident", 18, 2, 19, 1))
sketch12.addConstraint(Sketcher.Constraint("Coincident", 19, 2, 20, 1))
sketch12.addConstraint(Sketcher.Constraint("Coincident", 20, 2, 21, 1))
sketch12.addConstraint(Sketcher.Constraint("Coincident", 21, 2, 22, 1))
sketch12.addConstraint(Sketcher.Constraint("Coincident", 22, 2, 23, 1))
sketch12.addConstraint(Sketcher.Constraint("Coincident", 23, 2, 18, 1))
sketch12.addConstraint(Sketcher.Constraint("Coincident", 24, 2, 25, 1))
sketch12.addConstraint(Sketcher.Constraint("Coincident", 25, 2, 26, 1))
sketch12.addConstraint(Sketcher.Constraint("Coincident", 26, 2, 27, 1))
sketch12.addConstraint(Sketcher.Constraint("Coincident", 27, 2, 28, 1))
sketch12.addConstraint(Sketcher.Constraint("Coincident", 28, 2, 29, 1))
sketch12.addConstraint(Sketcher.Constraint("Coincident", 29, 2, 24, 1))
sketch12.addConstraint(Sketcher.Constraint("Coincident", 30, 2, 31, 1))
sketch12.addConstraint(Sketcher.Constraint("Coincident", 31, 2, 32, 1))
sketch12.addConstraint(Sketcher.Constraint("Coincident", 32, 2, 33, 1))
sketch12.addConstraint(Sketcher.Constraint("Coincident", 33, 2, 34, 1))
sketch12.addConstraint(Sketcher.Constraint("Coincident", 34, 2, 35, 1))
sketch12.addConstraint(Sketcher.Constraint("Coincident", 35, 2, 30, 1))
sketch12.addConstraint(Sketcher.Constraint("Vertical", 0))
sketch12.addConstraint(Sketcher.Constraint("Vertical", 3))
sketch12.addConstraint(Sketcher.Constraint("Vertical", 8))
sketch12.addConstraint(Sketcher.Constraint("Vertical", 11))
sketch12.addConstraint(Sketcher.Constraint("Vertical", 14))
sketch12.addConstraint(Sketcher.Constraint("Vertical", 17))
sketch12.addConstraint(Sketcher.Constraint("Vertical", 20))
sketch12.addConstraint(Sketcher.Constraint("Vertical", 23))
sketch12.addConstraint(Sketcher.Constraint("Vertical", 24))
sketch12.addConstraint(Sketcher.Constraint("Vertical", 27))
sketch12.addConstraint(Sketcher.Constraint("Vertical", 32))
sketch12.addConstraint(Sketcher.Constraint("Vertical", 35))
sketch12.addConstraint(Sketcher.Constraint("Symmetric", 4, 2, 6, 2, -1, 1))
sketch12.addConstraint(Sketcher.Constraint("Symmetric", 5, 2, 7, 2, -1, 1))
sketch12.addConstraint(Sketcher.Constraint("Symmetric", 1, 2, 9, 2, -1, 1))
sketch12.addConstraint(Sketcher.Constraint("Symmetric", 2, 2, 10, 2, -1, 1))
sketch12.addConstraint(Sketcher.Constraint("Symmetric", 20, 2, 24, 2, -1, 1))
sketch12.addConstraint(Sketcher.Constraint("Symmetric", 21, 2, 25, 2, -1, 1))
sketch12.addConstraint(Sketcher.Constraint("Symmetric", 22, 2, 26, 2, -1, 1))
sketch12.addConstraint(Sketcher.Constraint("Symmetric", 18, 2, 28, 2, -1, 1))
sketch12.addConstraint(Sketcher.Constraint("Symmetric", 12, 2, 30, 2, -1, 1))
sketch12.addConstraint(Sketcher.Constraint("Symmetric", 13, 2, 31, 2, -1, 1))
sketch12.addConstraint(Sketcher.Constraint("Symmetric", 15, 2, 33, 2, -1, 1))
sketch12.addConstraint(Sketcher.Constraint("Symmetric", 16, 2, 34, 2, -1, 1))
sketch12.addConstraint(Sketcher.Constraint("Symmetric", 0, 2, 2, 2, -2))
sketch12.addConstraint(Sketcher.Constraint("Symmetric", 16, 2, 24, 2, -2))
sketch12.addConstraint(Sketcher.Constraint("Symmetric", 15, 2, 25, 2, -2))
sketch12.addConstraint(Sketcher.Constraint("Symmetric", 14, 2, 26, 2, -2))
sketch12.addConstraint(Sketcher.Constraint("Symmetric", 12, 2, 28, 2, -2))
sketch12.addConstraint(Sketcher.Constraint("PointOnObject", 1, 2, -2))
sketch12.addConstraint(Sketcher.Constraint("PointOnObject", 4, 2, -2))
sketch12.addConstraint(Sketcher.Constraint("Parallel", 1, 4))
sketch12.addConstraint(Sketcher.Constraint("Parallel", 2, 5))
sketch12.addConstraint(Sketcher.Constraint("Parallel", 4, 6))
sketch12.addConstraint(Sketcher.Constraint("Parallel", 6, 9))
sketch12.addConstraint(Sketcher.Constraint("Parallel", 9, 12))
sketch12.addConstraint(Sketcher.Constraint("Parallel", 10, 13))
sketch12.addConstraint(Sketcher.Constraint("Parallel", 12, 15))
sketch12.addConstraint(Sketcher.Constraint("Parallel", 13, 16))
sketch12.addConstraint(Sketcher.Constraint("Parallel", 15, 18))
sketch12.addConstraint(Sketcher.Constraint("Parallel", 16, 19))
sketch12.addConstraint(Sketcher.Constraint("Parallel", 25, 28))
sketch12.addConstraint(Sketcher.Constraint("Parallel", 26, 29))
sketch12.addConstraint(Sketcher.Constraint("Parallel", 28, 30))
sketch12.addConstraint(Sketcher.Constraint("Parallel", 30, 33))
sketch12.addConstraint(Sketcher.Constraint("Horizontal", 6, 2, 12, 2))
sketch12.addConstraint(Sketcher.Constraint("Horizontal", 11, 2, 13, 2))
sketch12.addConstraint(Sketcher.Constraint("Horizontal", 10, 2, 14, 2))
sketch12.addConstraint(Sketcher.Constraint("Horizontal", 9, 2, 15, 2))
sketch12.addConstraint(Sketcher.Constraint("Horizontal", 14, 2, 16, 2))
sketch12.addConstraint(Sketcher.Constraint("Angle", 1, Q("150 deg")))
sketch12.addConstraint(Sketcher.Constraint("DistanceX", 12, 2, -1, 1, Q("2.51 in")))
sketch12.addConstraint(Sketcher.Constraint("DistanceX", 2, 2, 0, 2, Q("8.3375 mm")))
sketch12.addConstraint(Sketcher.Constraint("DistanceY", 7, 2, 2, 2, Q("42.929 mm")))
sketch12.addConstraint(Sketcher.Constraint("DistanceY", 0, 1, 0, 2, Q("4.813658 mm")))
pocket7 = doc.addObject("PartDesign::Pocket", "Pocket006")
body.addObject(pocket7)
pocket7.Profile = sketch12
pocket7.setExpression("Length", "Params.pocket7_length")

doc.recompute()
